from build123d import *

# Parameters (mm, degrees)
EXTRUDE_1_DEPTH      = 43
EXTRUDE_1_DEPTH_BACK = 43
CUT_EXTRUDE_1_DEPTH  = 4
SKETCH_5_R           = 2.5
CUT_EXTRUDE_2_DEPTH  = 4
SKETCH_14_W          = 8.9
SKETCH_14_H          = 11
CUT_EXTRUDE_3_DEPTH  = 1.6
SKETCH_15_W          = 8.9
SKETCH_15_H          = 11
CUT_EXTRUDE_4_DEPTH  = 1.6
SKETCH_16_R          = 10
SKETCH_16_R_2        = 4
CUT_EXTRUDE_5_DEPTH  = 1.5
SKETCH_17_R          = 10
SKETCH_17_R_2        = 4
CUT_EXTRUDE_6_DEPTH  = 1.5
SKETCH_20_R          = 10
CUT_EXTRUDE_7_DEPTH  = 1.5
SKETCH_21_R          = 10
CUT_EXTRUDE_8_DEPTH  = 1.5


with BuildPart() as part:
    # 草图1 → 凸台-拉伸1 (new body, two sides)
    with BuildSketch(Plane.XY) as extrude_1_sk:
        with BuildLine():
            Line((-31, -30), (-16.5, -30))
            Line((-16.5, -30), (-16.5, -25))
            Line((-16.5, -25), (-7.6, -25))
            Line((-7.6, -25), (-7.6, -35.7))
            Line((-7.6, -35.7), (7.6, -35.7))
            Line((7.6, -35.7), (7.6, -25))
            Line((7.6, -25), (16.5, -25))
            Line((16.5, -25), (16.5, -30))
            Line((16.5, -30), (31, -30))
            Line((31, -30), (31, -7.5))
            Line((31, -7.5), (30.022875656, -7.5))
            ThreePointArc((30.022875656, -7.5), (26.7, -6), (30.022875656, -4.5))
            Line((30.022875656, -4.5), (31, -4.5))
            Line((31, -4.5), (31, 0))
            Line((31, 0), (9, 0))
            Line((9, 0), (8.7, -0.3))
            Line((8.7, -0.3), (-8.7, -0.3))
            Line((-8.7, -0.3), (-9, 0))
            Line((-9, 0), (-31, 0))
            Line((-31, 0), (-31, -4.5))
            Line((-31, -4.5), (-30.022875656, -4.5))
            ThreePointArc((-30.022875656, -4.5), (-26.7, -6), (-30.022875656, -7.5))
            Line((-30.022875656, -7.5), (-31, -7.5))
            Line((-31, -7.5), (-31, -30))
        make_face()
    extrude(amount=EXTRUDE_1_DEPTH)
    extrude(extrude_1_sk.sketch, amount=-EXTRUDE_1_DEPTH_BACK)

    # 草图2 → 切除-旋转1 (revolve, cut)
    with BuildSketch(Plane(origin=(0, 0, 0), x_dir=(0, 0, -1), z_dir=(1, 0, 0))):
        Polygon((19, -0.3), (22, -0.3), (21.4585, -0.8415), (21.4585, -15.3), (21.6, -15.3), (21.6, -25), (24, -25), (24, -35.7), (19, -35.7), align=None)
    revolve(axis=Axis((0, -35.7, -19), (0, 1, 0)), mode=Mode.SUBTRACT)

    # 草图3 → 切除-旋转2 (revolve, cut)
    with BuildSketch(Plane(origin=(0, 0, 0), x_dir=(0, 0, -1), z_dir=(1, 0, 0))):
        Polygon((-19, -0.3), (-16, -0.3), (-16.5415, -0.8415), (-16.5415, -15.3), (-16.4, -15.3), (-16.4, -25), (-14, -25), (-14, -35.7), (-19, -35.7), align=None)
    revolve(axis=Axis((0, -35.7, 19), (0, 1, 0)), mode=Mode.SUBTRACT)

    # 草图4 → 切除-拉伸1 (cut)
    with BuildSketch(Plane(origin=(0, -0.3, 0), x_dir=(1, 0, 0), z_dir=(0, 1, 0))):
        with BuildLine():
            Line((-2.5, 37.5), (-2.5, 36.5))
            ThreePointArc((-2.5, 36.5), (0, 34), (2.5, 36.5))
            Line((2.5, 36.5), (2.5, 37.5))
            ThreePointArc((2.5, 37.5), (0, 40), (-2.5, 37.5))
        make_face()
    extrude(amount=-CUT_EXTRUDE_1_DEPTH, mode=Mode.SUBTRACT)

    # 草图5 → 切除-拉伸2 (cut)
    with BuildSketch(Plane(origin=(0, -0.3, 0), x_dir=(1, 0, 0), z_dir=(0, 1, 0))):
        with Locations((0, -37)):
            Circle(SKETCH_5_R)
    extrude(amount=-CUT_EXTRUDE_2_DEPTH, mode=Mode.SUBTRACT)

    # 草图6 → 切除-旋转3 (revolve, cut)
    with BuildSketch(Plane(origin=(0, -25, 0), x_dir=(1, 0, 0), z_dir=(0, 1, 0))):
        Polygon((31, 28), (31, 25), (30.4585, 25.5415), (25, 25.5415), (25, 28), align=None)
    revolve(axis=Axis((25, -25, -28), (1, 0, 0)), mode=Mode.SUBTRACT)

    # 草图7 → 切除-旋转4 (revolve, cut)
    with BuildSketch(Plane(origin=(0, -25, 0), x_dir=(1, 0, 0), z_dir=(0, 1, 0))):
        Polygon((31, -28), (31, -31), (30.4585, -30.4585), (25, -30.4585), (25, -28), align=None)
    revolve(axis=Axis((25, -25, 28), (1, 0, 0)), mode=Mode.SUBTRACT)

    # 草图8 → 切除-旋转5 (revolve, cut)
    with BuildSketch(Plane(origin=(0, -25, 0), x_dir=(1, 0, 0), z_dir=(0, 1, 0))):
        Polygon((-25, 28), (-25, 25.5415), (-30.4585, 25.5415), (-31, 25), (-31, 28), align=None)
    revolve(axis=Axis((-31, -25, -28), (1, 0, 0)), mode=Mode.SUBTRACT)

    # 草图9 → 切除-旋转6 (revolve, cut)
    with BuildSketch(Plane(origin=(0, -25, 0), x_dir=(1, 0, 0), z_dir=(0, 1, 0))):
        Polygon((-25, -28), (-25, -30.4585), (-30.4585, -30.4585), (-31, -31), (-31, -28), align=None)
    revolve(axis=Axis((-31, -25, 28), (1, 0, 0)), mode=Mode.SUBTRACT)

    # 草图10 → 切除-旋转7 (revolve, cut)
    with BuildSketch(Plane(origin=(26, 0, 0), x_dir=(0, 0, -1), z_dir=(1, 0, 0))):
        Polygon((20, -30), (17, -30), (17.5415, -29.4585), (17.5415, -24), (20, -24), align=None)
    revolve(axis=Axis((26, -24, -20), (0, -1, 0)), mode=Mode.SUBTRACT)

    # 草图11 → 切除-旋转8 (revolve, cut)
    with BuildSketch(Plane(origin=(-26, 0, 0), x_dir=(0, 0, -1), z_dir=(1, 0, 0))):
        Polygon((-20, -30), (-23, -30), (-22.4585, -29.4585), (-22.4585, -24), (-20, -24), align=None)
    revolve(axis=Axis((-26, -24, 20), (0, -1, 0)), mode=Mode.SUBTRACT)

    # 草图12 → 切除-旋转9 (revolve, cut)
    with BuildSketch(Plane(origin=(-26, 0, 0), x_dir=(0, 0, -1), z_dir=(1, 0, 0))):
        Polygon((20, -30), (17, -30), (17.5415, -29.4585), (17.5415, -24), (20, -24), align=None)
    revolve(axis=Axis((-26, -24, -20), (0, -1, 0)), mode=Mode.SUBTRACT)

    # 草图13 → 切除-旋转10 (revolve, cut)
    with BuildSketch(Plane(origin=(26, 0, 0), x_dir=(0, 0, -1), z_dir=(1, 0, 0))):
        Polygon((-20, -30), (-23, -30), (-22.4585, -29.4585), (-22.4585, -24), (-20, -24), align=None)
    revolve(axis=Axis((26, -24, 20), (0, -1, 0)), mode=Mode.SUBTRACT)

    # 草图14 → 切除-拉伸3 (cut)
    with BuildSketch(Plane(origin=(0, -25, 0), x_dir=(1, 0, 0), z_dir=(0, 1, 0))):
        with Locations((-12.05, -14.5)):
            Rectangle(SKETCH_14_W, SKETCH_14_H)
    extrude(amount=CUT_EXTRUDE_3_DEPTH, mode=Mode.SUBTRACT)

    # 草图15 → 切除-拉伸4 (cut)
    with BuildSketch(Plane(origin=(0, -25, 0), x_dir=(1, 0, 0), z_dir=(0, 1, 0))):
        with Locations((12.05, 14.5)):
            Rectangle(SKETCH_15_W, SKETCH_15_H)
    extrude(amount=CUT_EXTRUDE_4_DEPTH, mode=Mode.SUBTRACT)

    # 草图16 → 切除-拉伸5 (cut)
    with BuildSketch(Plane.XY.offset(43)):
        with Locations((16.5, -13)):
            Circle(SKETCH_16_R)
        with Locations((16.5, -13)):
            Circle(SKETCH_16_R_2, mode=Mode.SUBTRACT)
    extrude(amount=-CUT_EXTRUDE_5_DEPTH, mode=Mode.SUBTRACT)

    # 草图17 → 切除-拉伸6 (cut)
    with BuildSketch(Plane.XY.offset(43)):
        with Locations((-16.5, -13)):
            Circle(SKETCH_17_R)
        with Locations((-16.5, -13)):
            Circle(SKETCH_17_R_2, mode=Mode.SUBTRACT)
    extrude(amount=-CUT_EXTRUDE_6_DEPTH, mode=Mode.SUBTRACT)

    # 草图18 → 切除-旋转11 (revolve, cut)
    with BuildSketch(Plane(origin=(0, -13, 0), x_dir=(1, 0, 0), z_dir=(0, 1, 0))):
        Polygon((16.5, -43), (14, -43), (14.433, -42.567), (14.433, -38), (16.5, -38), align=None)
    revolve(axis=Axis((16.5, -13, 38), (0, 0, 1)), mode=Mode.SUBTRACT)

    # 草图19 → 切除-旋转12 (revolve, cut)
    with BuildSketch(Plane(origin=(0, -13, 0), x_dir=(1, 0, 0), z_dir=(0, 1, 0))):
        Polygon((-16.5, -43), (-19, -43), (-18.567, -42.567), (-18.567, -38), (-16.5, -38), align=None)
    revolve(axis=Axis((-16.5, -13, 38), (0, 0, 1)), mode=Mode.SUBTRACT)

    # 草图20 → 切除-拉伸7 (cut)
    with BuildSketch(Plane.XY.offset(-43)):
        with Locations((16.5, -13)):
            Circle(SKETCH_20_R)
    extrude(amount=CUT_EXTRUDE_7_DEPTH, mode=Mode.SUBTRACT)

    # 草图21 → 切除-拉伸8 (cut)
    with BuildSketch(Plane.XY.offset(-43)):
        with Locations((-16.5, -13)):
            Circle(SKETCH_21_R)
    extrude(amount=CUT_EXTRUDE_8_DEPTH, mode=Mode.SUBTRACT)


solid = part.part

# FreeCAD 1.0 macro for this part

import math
import FreeCAD as App
import Part
import Sketcher
from FreeCAD import Vector
Q = App.Units.Quantity


def add_polygon(sketch, points):
    """Adds a closed chain of lines whose ends are joined by coincident constraints."""
    first, n = sketch.GeometryCount, len(points)
    for a, b in zip(points, points[1:] + points[:1]):
        sketch.addGeometry(Part.LineSegment(App.Vector(*a, 0), App.Vector(*b, 0)), False)
    for i in range(n):
        sketch.addConstraint(Sketcher.Constraint("Coincident", first + i, 2, first + (i + 1) % n, 1))

doc = App.newDocument("Part")
params = doc.addObject("Spreadsheet::Sheet", "Params")
for row, (alias, value) in enumerate([
    ("sketch1_radius", "2 mm"),
    ("sketch1_width", "22 mm"),
    ("sketch1_height", "5 mm"),
    ("sketch1_width2", "14.5 mm"),
    ("sketch1_width3", "8.9 mm"),
    ("pad1_length", "43 mm"),
    ("pad1_length2", "43 mm"),
    ("sketch2_height", "3 mm"),
    ("sketch2_height2", "5 mm"),
    ("sketch2_width", "35.4 mm"),
    ("sketch2_width2", "10.7 mm"),
    ("sketch2_width3", "9.7 mm"),
    ("groove_angle", "360 deg"),
    ("sketch3_height", "3 mm"),
    ("sketch3_height2", "5 mm"),
    ("sketch3_width", "35.4 mm"),
    ("sketch3_width2", "10.7 mm"),
    ("sketch3_width3", "9.7 mm"),
    ("groove2_angle", "360 deg"),
    ("sketch4_radius", "2.5 mm"),
    ("sketch4_height", "1 mm"),
    ("pocket1_length", "4 mm"),
    ("sketch5_diameter", "5 mm"),
    ("pocket2_length", "4 mm"),
    ("sketch6_width", "6 mm"),
    ("sketch6_height", "3 mm"),
    ("groove3_angle", "360 deg"),
    ("sketch7_width", "6 mm"),
    ("sketch7_height", "3 mm"),
    ("groove4_angle", "360 deg"),
    ("sketch8_width", "6 mm"),
    ("sketch8_height", "3 mm"),
    ("groove5_angle", "360 deg"),
    ("sketch9_width", "6 mm"),
    ("sketch9_height", "3 mm"),
    ("groove6_angle", "360 deg"),
    ("sketch10_width", "6 mm"),
    ("sketch10_height", "3 mm"),
    ("groove7_angle", "360 deg"),
    ("sketch11_width", "6 mm"),
    ("sketch11_height", "3 mm"),
    ("groove8_angle", "360 deg"),
    ("sketch12_width", "6 mm"),
    ("sketch12_height", "3 mm"),
    ("groove9_angle", "360 deg"),
    ("sketch13_width", "6 mm"),
    ("sketch13_height", "3 mm"),
    ("groove10_angle", "360 deg"),
    ("sketch14_height", "11 mm"),
    ("sketch14_width", "8.9 mm"),
    ("pocket3_length", "1.6 mm"),
    ("sketch15_height", "11 mm"),
    ("sketch15_width", "8.9 mm"),
    ("pocket4_length", "1.6 mm"),
    ("sketch16_diameter", "20 mm"),
    ("sketch16_diameter2", "8 mm"),
    ("pocket5_length", "1.5 mm"),
    ("sketch17_diameter", "20 mm"),
    ("sketch17_diameter2", "8 mm"),
    ("pocket6_length", "1.5 mm"),
    ("sketch18_height", "5 mm"),
    ("sketch18_width", "2.5 mm"),
    ("groove11_angle", "360 deg"),
    ("sketch19_height", "5 mm"),
    ("sketch19_width", "2.5 mm"),
    ("groove12_angle", "360 deg"),
    ("sketch20_diameter", "20 mm"),
    ("pocket7_length", "1.5 mm"),
    ("sketch21_diameter", "20 mm"),
    ("pocket8_length", "1.5 mm"),
], start=1):
    params.set(f"A{row}", alias)
    params.set(f"B{row}", "=" + value)
    params.setAlias(f"B{row}", alias)

body = doc.addObject("PartDesign::Body", "Body")

sketch1 = body.newObject("Sketcher::SketchObject", "Sketch")
sketch1.AttachmentSupport = (doc.getObject("XY_Plane"), [""])
sketch1.MapMode = "FlatFace"
sketch1.addGeometry([
    Part.LineSegment(Vector(-31, -30, 0), Vector(-16.5, -30, 0)),
    Part.LineSegment(Vector(-16.5, -30, 0), Vector(-16.5, -25, 0)),
    Part.LineSegment(Vector(-16.5, -25, 0), Vector(-7.6, -25, 0)),
    Part.LineSegment(Vector(-7.6, -25, 0), Vector(-7.6, -35.7, 0)),
    Part.LineSegment(Vector(-7.6, -35.7, 0), Vector(7.6, -35.7, 0)),
    Part.LineSegment(Vector(7.6, -35.7, 0), Vector(7.6, -25, 0)),
    Part.LineSegment(Vector(7.6, -25, 0), Vector(16.5, -25, 0)),
    Part.LineSegment(Vector(16.5, -25, 0), Vector(16.5, -30, 0)),
    Part.LineSegment(Vector(16.5, -30, 0), Vector(31, -30, 0)),
    Part.LineSegment(Vector(31, -30, 0), Vector(31, -7.5, 0)),
    Part.LineSegment(Vector(31, -7.5, 0), Vector(30.022876, -7.5, 0)),
    Part.ArcOfCircle(Part.Circle(Vector(28.7, -6, 0), Vector(0, 0, 1), 2), math.radians(48.590378), math.radians(311.409622)),
    Part.LineSegment(Vector(30.022876, -4.5, 0), Vector(31, -4.5, 0)),
    Part.LineSegment(Vector(31, -4.5, 0), Vector(31, 0, 0)),
    Part.LineSegment(Vector(31, 0, 0), Vector(9, 0, 0)),
    Part.LineSegment(Vector(9, 0, 0), Vector(8.7, -0.3, 0)),
    Part.LineSegment(Vector(8.7, -0.3, 0), Vector(-8.7, -0.3, 0)),
    Part.LineSegment(Vector(-8.7, -0.3, 0), Vector(-9, 0, 0)),
    Part.LineSegment(Vector(-9, 0, 0), Vector(-31, 0, 0)),
    Part.LineSegment(Vector(-31, 0, 0), Vector(-31, -4.5, 0)),
    Part.LineSegment(Vector(-31, -4.5, 0), Vector(-30.022876, -4.5, 0)),
    Part.ArcOfCircle(Part.Circle(Vector(-28.7, -6, 0), Vector(0, 0, 1), 2), math.radians(-131.409622), math.radians(131.409622)),
    Part.LineSegment(Vector(-30.022876, -7.5, 0), Vector(-31, -7.5, 0)),
    Part.LineSegment(Vector(-31, -7.5, 0), Vector(-31, -30, 0)),
], False)
sketch1.addConstraint([
    Sketcher.Constraint("Coincident", 0, 2, 1, 1),
    Sketcher.Constraint("Coincident", 1, 2, 2, 1),
    Sketcher.Constraint("Coincident", 2, 2, 3, 1),
    Sketcher.Constraint("Coincident", 3, 2, 4, 1),
    Sketcher.Constraint("Coincident", 4, 2, 5, 1),
    Sketcher.Constraint("Coincident", 5, 2, 6, 1),
    Sketcher.Constraint("Coincident", 6, 2, 7, 1),
    Sketcher.Constraint("Coincident", 7, 2, 8, 1),
    Sketcher.Constraint("Coincident", 8, 2, 9, 1),
    Sketcher.Constraint("Coincident", 9, 2, 10, 1),
    Sketcher.Constraint("Coincident", 10, 2, 11, 2),
    Sketcher.Constraint("Coincident", 11, 1, 12, 1),
    Sketcher.Constraint("Coincident", 12, 2, 13, 1),
    Sketcher.Constraint("Coincident", 13, 2, 14, 1),
    Sketcher.Constraint("Coincident", 14, 2, 15, 1),
    Sketcher.Constraint("Coincident", 15, 2, 16, 1),
    Sketcher.Constraint("Coincident", 16, 2, 17, 1),
    Sketcher.Constraint("Coincident", 17, 2, 18, 1),
    Sketcher.Constraint("Coincident", 18, 2, 19, 1),
    Sketcher.Constraint("Coincident", 19, 2, 20, 1),
    Sketcher.Constraint("Coincident", 20, 2, 21, 2),
    Sketcher.Constraint("Coincident", 21, 1, 22, 1),
    Sketcher.Constraint("Coincident", 22, 2, 23, 1),
    Sketcher.Constraint("Coincident", 23, 2, 0, 1),
    Sketcher.Constraint("Horizontal", 0),
    Sketcher.Constraint("Vertical", 1),
    Sketcher.Constraint("Horizontal", 2),
    Sketcher.Constraint("Vertical", 3),
    Sketcher.Constraint("Horizontal", 4),
    Sketcher.Constraint("Vertical", 5),
    Sketcher.Constraint("Horizontal", 6),
    Sketcher.Constraint("Vertical", 7),
    Sketcher.Constraint("Horizontal", 8),
    Sketcher.Constraint("Vertical", 9),
    Sketcher.Constraint("Horizontal", 10),
    Sketcher.Constraint("Horizontal", 12),
    Sketcher.Constraint("Vertical", 13),
    Sketcher.Constraint("Horizontal", 14),
    Sketcher.Constraint("Horizontal", 16),
    Sketcher.Constraint("Horizontal", 18),
    Sketcher.Constraint("Vertical", 19),
    Sketcher.Constraint("Horizontal", 20),
    Sketcher.Constraint("Horizontal", 22),
    Sketcher.Constraint("Vertical", 23),
    Sketcher.Constraint("Equal", 11, 21),
    Sketcher.Constraint("Symmetric", 14, 2, 17, 2, -1, 1),
    Sketcher.Constraint("Symmetric", 11, 3, 21, 3, -2),
    Sketcher.Constraint("Symmetric", 2, 2, 5, 2, -2),
    Sketcher.Constraint("Symmetric", 0, 2, 7, 2, -2),
    Sketcher.Constraint("Symmetric", 13, 2, 18, 2, -2),
    Sketcher.Constraint("Symmetric", 9, 2, 22, 2, -2),
    Sketcher.Constraint("Perpendicular", 15, 17),
    Sketcher.Constraint("Horizontal", 12, 2, 19, 2),
    Sketcher.Constraint("Vertical", 10, 2, 11, 1),
    Sketcher.Constraint("Vertical", 9, 2, 12, 2),
    Sketcher.Constraint("Equal", 15, 17),
    Sketcher.Constraint("Radius", 11, 2.0),
    Sketcher.Constraint("DistanceX", 14, 2, 14, 1, 22.0),
    Sketcher.Constraint("DistanceY", 1, 1, 1, 2, 5.0),
    Sketcher.Constraint("DistanceX", 0, 1, 0, 2, 14.5),
    Sketcher.Constraint("DistanceX", 2, 1, 2, 2, 8.9),
    Sketcher.Constraint("DistanceX", 4, 1, 4, 2, 15.2),
    Sketcher.Constraint("DistanceX", 16, 2, 16, 1, 17.4),
    Sketcher.Constraint("DistanceY", 3, 2, 3, 1, 10.7),
    Sketcher.Constraint("DistanceY", 9, 1, 9, 2, 22.5),
    Sketcher.Constraint("DistanceY", 13, 1, 13, 2, 4.5),
    Sketcher.Constraint("DistanceY", 11, 3, -1, 1, 6.0),
    Sketcher.Constraint("DistanceX", 15, 2, 11, 3, 20.0),
])
sketch1.setExpression("Constraints[56]", "Params.sketch1_radius")
sketch1.setExpression("Constraints[57]", "Params.sketch1_width")
sketch1.setExpression("Constraints[58]", "Params.sketch1_height")
sketch1.setExpression("Constraints[59]", "Params.sketch1_width2")
sketch1.setExpression("Constraints[60]", "Params.sketch1_width3")
pad1 = body.newObject("PartDesign::Pad", "Pad")
pad1.Profile = sketch1
pad1.Type = "TwoLengths"
pad1.setExpression("Length", "Params.pad1_length")
pad1.setExpression("Length2", "Params.pad1_length2")

sketch2 = body.newObject("Sketcher::SketchObject", "Sketch001")
sketch2.AttachmentSupport = (doc.getObject("YZ_Plane"), [""])
sketch2.MapMode = "FlatFace"
add_polygon(sketch2, [(-0.3, -22), (-0.3, -19), (-35.7, -19), (-35.7, -24), (-25, -24), (-25, -21.6), (-15.3, -21.6), (-15.3, -21.4585), (-0.8415, -21.4585)])
sketch2.addGeometry(Part.LineSegment(Vector(-35.7, -19, 0), Vector(-0.3, -19, 0)), True)
sketch2.addConstraint([
    Sketcher.Constraint("Vertical", 0),
    Sketcher.Constraint("Horizontal", 1),
    Sketcher.Constraint("Vertical", 2),
    Sketcher.Constraint("Horizontal", 3),
    Sketcher.Constraint("Vertical", 4),
    Sketcher.Constraint("Horizontal", 5),
    Sketcher.Constraint("Vertical", 6),
    Sketcher.Constraint("Horizontal", 7),
    Sketcher.Constraint("Horizontal", 9),
    Sketcher.Constraint("Coincident", 9, 1, 1, 2),
    Sketcher.Constraint("Vertical", 8, 2, 9, 2),
    Sketcher.Constraint("DistanceY", 0, 1, 0, 2, 3.0),
    Sketcher.Constraint("DistanceY", 2, 2, 2, 1, 5.0),
    Sketcher.Constraint("Angle", 8, Q("-45 deg")),
    Sketcher.Constraint("DistanceX", 1, 2, 1, 1, 35.4),
    Sketcher.Constraint("DistanceX", 3, 1, 3, 2, 10.7),
    Sketcher.Constraint("DistanceX", 5, 1, 5, 2, 9.7),
    Sketcher.Constraint("DistanceY", 4, 1, 4, 2, 2.4),
    Sketcher.Constraint("DistanceY", 0, 2, -1, 1, 19.0),
    Sketcher.Constraint("DistanceX", 3, 2, -1, 1, 25.0),
    Sketcher.Constraint("DistanceX", 7, 1, 7, 2, 14.4585),
])
sketch2.setExpression("Constraints[20]", "Params.sketch2_height")
sketch2.setExpression("Constraints[21]", "Params.sketch2_height2")
sketch2.setExpression("Constraints[23]", "Params.sketch2_width")
sketch2.setExpression("Constraints[24]", "Params.sketch2_width2")
sketch2.setExpression("Constraints[25]", "Params.sketch2_width3")
groove = body.newObject("PartDesign::Groove", "Groove")
groove.Profile = sketch2
groove.ReferenceAxis = (sketch2, ["Axis0"])
groove.setExpression("Angle", "Params.groove_angle")

sketch3 = body.newObject("Sketcher::SketchObject", "Sketch002")
sketch3.AttachmentSupport = (doc.getObject("YZ_Plane"), [""])
sketch3.MapMode = "FlatFace"
add_polygon(sketch3, [(-0.3, 16), (-0.3, 19), (-35.7, 19), (-35.7, 14), (-25, 14), (-25, 16.4), (-15.3, 16.4), (-15.3, 16.5415), (-0.8415, 16.5415)])
sketch3.addGeometry(Part.LineSegment(Vector(-35.7, 19, 0), Vector(-0.3, 19, 0)), True)
sketch3.addConstraint([
    Sketcher.Constraint("Vertical", 0),
    Sketcher.Constraint("Horizontal", 1),
    Sketcher.Constraint("Vertical", 2),
    Sketcher.Constraint("Horizontal", 3),
    Sketcher.Constraint("Vertical", 4),
    Sketcher.Constraint("Horizontal", 5),
    Sketcher.Constraint("Vertical", 6),
    Sketcher.Constraint("Horizontal", 7),
    Sketcher.Constraint("Horizontal", 9),
    Sketcher.Constraint("Coincident", 9, 1, 1, 2),
    Sketcher.Constraint("Vertical", 8, 2, 9, 2),
    Sketcher.Constraint("DistanceY", 0, 1, 0, 2, 3.0),
    Sketcher.Constraint("DistanceY", 2, 2, 2, 1, 5.0),
    Sketcher.Constraint("Angle", 8, Q("-45 deg")),
    Sketcher.Constraint("DistanceX", 1, 2, 1, 1, 35.4),
    Sketcher.Constraint("DistanceX", 3, 1, 3, 2, 10.7),
    Sketcher.Constraint("DistanceX", 5, 1, 5, 2, 9.7),
    Sketcher.Constraint("DistanceY", 4, 1, 4, 2, 2.4),
    Sketcher.Constraint("DistanceY", -1, 1, 0, 2, 19.0),
    Sketcher.Constraint("DistanceX", 3, 2, -1, 1, 25.0),
    Sketcher.Constraint("DistanceX", 7, 1, 7, 2, 14.4585),
])
sketch3.setExpression("Constraints[20]", "Params.sketch3_height")
sketch3.setExpression("Constraints[21]", "Params.sketch3_height2")
sketch3.setExpression("Constraints[23]", "Params.sketch3_width")
sketch3.setExpression("Constraints[24]", "Params.sketch3_width2")
sketch3.setExpression("Constraints[25]", "Params.sketch3_width3")
groove2 = body.newObject("PartDesign::Groove", "Groove001")
groove2.Profile = sketch3
groove2.ReferenceAxis = (sketch3, ["Axis0"])
groove2.setExpression("Angle", "Params.groove2_angle")

sketch4 = body.newObject("Sketcher::SketchObject", "Sketch003")
sketch4.AttachmentSupport = (doc.getObject("XZ_Plane"), [""])
sketch4.MapMode = "FlatFace"
sketch4.AttachmentOffset = App.Placement(Vector(0, 0, 0.3), App.Rotation())
sketch4.addGeometry([
    Part.LineSegment(Vector(-2.5, -37.5, 0), Vector(-2.5, -36.5, 0)),
    Part.ArcOfCircle(Part.Circle(Vector(0, -36.5, 0), Vector(0, 0, 1), 2.5), math.radians(0), math.radians(180)),
    Part.LineSegment(Vector(2.5, -36.5, 0), Vector(2.5, -37.5, 0)),
    Part.ArcOfCircle(Part.Circle(Vector(0, -37.5, 0), Vector(0, 0, 1), 2.5), math.radians(180), math.radians(360)),
], False)
sketch4.addConstraint([
    Sketcher.Constraint("Tangent", 0, 2, 1, 2),
    Sketcher.Constraint("Tangent", 1, 1, 2, 1),
    Sketcher.Constraint("Tangent", 2, 2, 3, 2),
    Sketcher.Constraint("Tangent", 3, 1, 0, 1),
    Sketcher.Constraint("Vertical", 0),
    Sketcher.Constraint("Vertical", 2),
    Sketcher.Constraint("PointOnObject", 1, 3, -2),
    Sketcher.Constraint("Radius", 1, 2.5),
    Sketcher.Constraint("DistanceY", 0, 1, 0, 2, 1.0),
    Sketcher.Constraint("DistanceY", 1, 3, -1, 1, 36.5),
])
sketch4.setExpression("Constraints[7]", "Params.sketch4_radius")
sketch4.setExpression("Constraints[8]", "Params.sketch4_height")
pocket1 = body.newObject("PartDesign::Pocket", "Pocket")
pocket1.Profile = sketch4
pocket1.setExpression("Length", "Params.pocket1_length")
pocket1.Reversed = True

sketch5 = body.newObject("Sketcher::SketchObject", "Sketch004")
sketch5.AttachmentSupport = (doc.getObject("XZ_Plane"), [""])
sketch5.MapMode = "FlatFace"
sketch5.AttachmentOffset = App.Placement(Vector(0, 0, 0.3), App.Rotation())
sketch5.addGeometry(Part.Circle(Vector(0, 37, 0), Vector(0, 0, 1), 2.5), False)
sketch5.addConstraint([
    Sketcher.Constraint("PointOnObject", 0, 3, -2),
    Sketcher.Constraint("Diameter", 0, 5.0),
    Sketcher.Constraint("DistanceY", -1, 1, 0, 3, 37.0),
])
sketch5.setExpression("Constraints[1]", "Params.sketch5_diameter")
pocket2 = body.newObject("PartDesign::Pocket", "Pocket001")
pocket2.Profile = sketch5
pocket2.setExpression("Length", "Params.pocket2_length")
pocket2.Reversed = True

sketch6 = body.newObject("Sketcher::SketchObject", "Sketch005")
sketch6.AttachmentSupport = (doc.getObject("XZ_Plane"), [""])
sketch6.MapMode = "FlatFace"
sketch6.AttachmentOffset = App.Placement(Vector(0, 0, 25), App.Rotation())
add_polygon(sketch6, [(31, -25), (31, -28), (25, -28), (25, -25.5415), (30.4585, -25.5415)])
sketch6.addGeometry(Part.LineSegment(Vector(25, -28, 0), Vector(31, -28, 0)), True)
sketch6.addConstraint([
    Sketcher.Constraint("Vertical", 0),
    Sketcher.Constraint("Horizontal", 1),
    Sketcher.Constraint("Vertical", 2),
    Sketcher.Constraint("Horizontal", 3),
    Sketcher.Constraint("Horizontal", 5),
    Sketcher.Constraint("Coincident", 5, 1, 1, 2),
    Sketcher.Constraint("Vertical", 4, 2, 5, 2),
    Sketcher.Constraint("DistanceX", 1, 2, 1, 1, 6.0),
    Sketcher.Constraint("DistanceY", 0, 2, 0, 1, 3.0),
    Sketcher.Constraint("Angle", 4, Q("45 deg")),
    Sketcher.Constraint("DistanceX", -1, 1, 0, 2, 31.0),
    Sketcher.Constraint("DistanceY", 0, 2, -1, 1, 28.0),
    Sketcher.Constraint("DistanceX", 3, 1, 3, 2, 5.4585),
])
sketch6.setExpression("Constraints[12]", "Params.sketch6_width")
sketch6.setExpression("Constraints[13]", "Params.sketch6_height")
groove3 = body.newObject("PartDesign::Groove", "Groove002")
groove3.Profile = sketch6
groove3.ReferenceAxis = (sketch6, ["Axis0"])
groove3.setExpression("Angle", "Params.groove3_angle")

sketch7 = body.newObject("Sketcher::SketchObject", "Sketch006")
sketch7.AttachmentSupport = (doc.getObject("XZ_Plane"), [""])
sketch7.MapMode = "FlatFace"
sketch7.AttachmentOffset = App.Placement(Vector(0, 0, 25), App.Rotation())
add_polygon(sketch7, [(31, 31), (31, 28), (25, 28), (25, 30.4585), (30.4585, 30.4585)])
sketch7.addGeometry(Part.LineSegment(Vector(25, 28, 0), Vector(31, 28, 0)), True)
sketch7.addConstraint([
    Sketcher.Constraint("Vertical", 0),
    Sketcher.Constraint("Horizontal", 1),
    Sketcher.Constraint("Vertical", 2),
    Sketcher.Constraint("Horizontal", 3),
    Sketcher.Constraint("Horizontal", 5),
    Sketcher.Constraint("Coincident", 5, 1, 1, 2),
    Sketcher.Constraint("Vertical", 4, 2, 5, 2),
    Sketcher.Constraint("DistanceX", 1, 2, 1, 1, 6.0),
    Sketcher.Constraint("DistanceY", 0, 2, 0, 1, 3.0),
    Sketcher.Constraint("Angle", 4, Q("45 deg")),
    Sketcher.Constraint("DistanceX", -1, 1, 0, 2, 31.0),
    Sketcher.Constraint("DistanceY", -1, 1, 0, 2, 28.0),
    Sketcher.Constraint("DistanceX", 3, 1, 3, 2, 5.4585),
])
sketch7.setExpression("Constraints[12]", "Params.sketch7_width")
sketch7.setExpression("Constraints[13]", "Params.sketch7_height")
groove4 = body.newObject("PartDesign::Groove", "Groove003")
groove4.Profile = sketch7
groove4.ReferenceAxis = (sketch7, ["Axis0"])
groove4.setExpression("Angle", "Params.groove4_angle")

sketch8 = body.newObject("Sketcher::SketchObject", "Sketch007")
sketch8.AttachmentSupport = (doc.getObject("XZ_Plane"), [""])
sketch8.MapMode = "FlatFace"
sketch8.AttachmentOffset = App.Placement(Vector(0, 0, 25), App.Rotation())
add_polygon(sketch8, [(-25, -25.5415), (-25, -28), (-31, -28), (-31, -25), (-30.4585, -25.5415)])
sketch8.addGeometry(Part.LineSegment(Vector(-31, -28, 0), Vector(-25, -28, 0)), True)
sketch8.addConstraint([
    Sketcher.Constraint("Vertical", 0),
    Sketcher.Constraint("Horizontal", 1),
    Sketcher.Constraint("Vertical", 2),
    Sketcher.Constraint("Horizontal", 4),
    Sketcher.Constraint("Horizontal", 5),
    Sketcher.Constraint("Coincident", 5, 1, 1, 2),
    Sketcher.Constraint("Vertical", 4, 2, 5, 2),
    Sketcher.Constraint("DistanceX", 1, 2, 1, 1, 6.0),
    Sketcher.Constraint("DistanceY", 2, 1, 2, 2, 3.0),
    Sketcher.Constraint("Angle", 3, Q("-45 deg")),
    Sketcher.Constraint("DistanceX", 0, 2, -1, 1, 25.0),
    Sketcher.Constraint("DistanceY", 0, 2, -1, 1, 28.0),
    Sketcher.Constraint("DistanceX", 4, 1, 4, 2, 5.4585),
])
sketch8.setExpression("Constraints[12]", "Params.sketch8_width")
sketch8.setExpression("Constraints[13]", "Params.sketch8_height")
groove5 = body.newObject("PartDesign::Groove", "Groove004")
groove5.Profile = sketch8
groove5.ReferenceAxis = (sketch8, ["Axis0"])
groove5.setExpression("Angle", "Params.groove5_angle")

sketch9 = body.newObject("Sketcher::SketchObject", "Sketch008")
sketch9.AttachmentSupport = (doc.getObject("XZ_Plane"), [""])
sketch9.MapMode = "FlatFace"
sketch9.AttachmentOffset = App.Placement(Vector(0, 0, 25), App.Rotation())
add_polygon(sketch9, [(-25, 30.4585), (-25, 28), (-31, 28), (-31, 31), (-30.4585, 30.4585)])
sketch9.addGeometry(Part.LineSegment(Vector(-31, 28, 0), Vector(-25, 28, 0)), True)
sketch9.addConstraint([
    Sketcher.Constraint("Vertical", 0),
    Sketcher.Constraint("Horizontal", 1),
    Sketcher.Constraint("Vertical", 2),
    Sketcher.Constraint("Horizontal", 4),
    Sketcher.Constraint("Horizontal", 5),
    Sketcher.Constraint("Coincident", 5, 1, 1, 2),
    Sketcher.Constraint("Vertical", 4, 2, 5, 2),
    Sketcher.Constraint("DistanceX", 1, 2, 1, 1, 6.0),
    Sketcher.Constraint("DistanceY", 2, 1, 2, 2, 3.0),
    Sketcher.Constraint("Angle", 3, Q("-45 deg")),
    Sketcher.Constraint("DistanceX", 0, 2, -1, 1, 25.0),
    Sketcher.Constraint("DistanceY", -1, 1, 0, 2, 28.0),
    Sketcher.Constraint("DistanceX", 4, 1, 4, 2, 5.4585),
])
sketch9.setExpression("Constraints[12]", "Params.sketch9_width")
sketch9.setExpression("Constraints[13]", "Params.sketch9_height")
groove6 = body.newObject("PartDesign::Groove", "Groove005")
groove6.Profile = sketch9
groove6.ReferenceAxis = (sketch9, ["Axis0"])
groove6.setExpression("Angle", "Params.groove6_angle")

sketch10 = body.newObject("Sketcher::SketchObject", "Sketch009")
sketch10.AttachmentSupport = (doc.getObject("YZ_Plane"), [""])
sketch10.MapMode = "FlatFace"
sketch10.AttachmentOffset = App.Placement(Vector(0, 0, 26), App.Rotation())
add_polygon(sketch10, [(-30, -17), (-30, -20), (-24, -20), (-24, -17.5415), (-29.4585, -17.5415)])
sketch10.addGeometry(Part.LineSegment(Vector(-24, -20, 0), Vector(-30, -20, 0)), True)
sketch10.addConstraint([
    Sketcher.Constraint("Vertical", 0),
    Sketcher.Constraint("Horizontal", 1),
    Sketcher.Constraint("Vertical", 2),
    Sketcher.Constraint("Horizontal", 3),
    Sketcher.Constraint("Horizontal", 5),
    Sketcher.Constraint("Coincident", 5, 1, 1, 2),
    Sketcher.Constraint("Vertical", 4, 2, 5, 2),
    Sketcher.Constraint("DistanceX", 1, 1, 1, 2, 6.0),
    Sketcher.Constraint("DistanceY", 0, 2, 0, 1, 3.0),
    Sketcher.Constraint("Angle", 4, Q("135 deg")),
    Sketcher.Constraint("DistanceX", 0, 2, -1, 1, 30.0),
    Sketcher.Constraint("DistanceY", 0, 2, -1, 1, 20.0),
    Sketcher.Constraint("DistanceX", 3, 2, 3, 1, 5.4585),
])
sketch10.setExpression("Constraints[12]", "Params.sketch10_width")
sketch10.setExpression("Constraints[13]", "Params.sketch10_height")
groove7 = body.newObject("PartDesign::Groove", "Groove006")
groove7.Profile = sketch10
groove7.ReferenceAxis = (sketch10, ["Axis0"])
groove7.setExpression("Angle", "Params.groove7_angle")

sketch11 = body.newObject("Sketcher::SketchObject", "Sketch010")
sketch11.AttachmentSupport = (doc.getObject("YZ_Plane"), [""])
sketch11.MapMode = "FlatFace"
sketch11.AttachmentOffset = App.Placement(Vector(0, 0, -26), App.Rotation())
add_polygon(sketch11, [(-30, 23), (-30, 20), (-24, 20), (-24, 22.4585), (-29.4585, 22.4585)])
sketch11.addGeometry(Part.LineSegment(Vector(-24, 20, 0), Vector(-30, 20, 0)), True)
sketch11.addConstraint([
    Sketcher.Constraint("Vertical", 0),
    Sketcher.Constraint("Horizontal", 1),
    Sketcher.Constraint("Vertical", 2),
    Sketcher.Constraint("Horizontal", 3),
    Sketcher.Constraint("Horizontal", 5),
    Sketcher.Constraint("Coincident", 5, 1, 1, 2),
    Sketcher.Constraint("Vertical", 4, 2, 5, 2),
    Sketcher.Constraint("DistanceX", 1, 1, 1, 2, 6.0),
    Sketcher.Constraint("DistanceY", 0, 2, 0, 1, 3.0),
    Sketcher.Constraint("Angle", 4, Q("135 deg")),
    Sketcher.Constraint("DistanceX", 0, 2, -1, 1, 30.0),
    Sketcher.Constraint("DistanceY", -1, 1, 0, 2, 20.0),
    Sketcher.Constraint("DistanceX", 3, 2, 3, 1, 5.4585),
])
sketch11.setExpression("Constraints[12]", "Params.sketch11_width")
sketch11.setExpression("Constraints[13]", "Params.sketch11_height")
groove8 = body.newObject("PartDesign::Groove", "Groove007")
groove8.Profile = sketch11
groove8.ReferenceAxis = (sketch11, ["Axis0"])
groove8.setExpression("Angle", "Params.groove8_angle")

sketch12 = body.newObject("Sketcher::SketchObject", "Sketch011")
sketch12.AttachmentSupport = (doc.getObject("YZ_Plane"), [""])
sketch12.MapMode = "FlatFace"
sketch12.AttachmentOffset = App.Placement(Vector(0, 0, -26), App.Rotation())
add_polygon(sketch12, [(-30, -17), (-30, -20), (-24, -20), (-24, -17.5415), (-29.4585, -17.5415)])
sketch12.addGeometry(Part.LineSegment(Vector(-24, -20, 0), Vector(-30, -20, 0)), True)
sketch12.addConstraint([
    Sketcher.Constraint("Vertical", 0),
    Sketcher.Constraint("Horizontal", 1),
    Sketcher.Constraint("Vertical", 2),
    Sketcher.Constraint("Horizontal", 3),
    Sketcher.Constraint("Horizontal", 5),
    Sketcher.Constraint("Coincident", 5, 1, 1, 2),
    Sketcher.Constraint("Vertical", 4, 2, 5, 2),
    Sketcher.Constraint("DistanceX", 1, 1, 1, 2, 6.0),
    Sketcher.Constraint("DistanceY", 0, 2, 0, 1, 3.0),
    Sketcher.Constraint("Angle", 4, Q("135 deg")),
    Sketcher.Constraint("DistanceX", 0, 2, -1, 1, 30.0),
    Sketcher.Constraint("DistanceY", 0, 2, -1, 1, 20.0),
    Sketcher.Constraint("DistanceX", 3, 2, 3, 1, 5.4585),
])
sketch12.setExpression("Constraints[12]", "Params.sketch12_width")
sketch12.setExpression("Constraints[13]", "Params.sketch12_height")
groove9 = body.newObject("PartDesign::Groove", "Groove008")
groove9.Profile = sketch12
groove9.ReferenceAxis = (sketch12, ["Axis0"])
groove9.setExpression("Angle", "Params.groove9_angle")

sketch13 = body.newObject("Sketcher::SketchObject", "Sketch012")
sketch13.AttachmentSupport = (doc.getObject("YZ_Plane"), [""])
sketch13.MapMode = "FlatFace"
sketch13.AttachmentOffset = App.Placement(Vector(0, 0, 26), App.Rotation())
add_polygon(sketch13, [(-30, 23), (-30, 20), (-24, 20), (-24, 22.4585), (-29.4585, 22.4585)])
sketch13.addGeometry(Part.LineSegment(Vector(-24, 20, 0), Vector(-30, 20, 0)), True)
sketch13.addConstraint([
    Sketcher.Constraint("Vertical", 0),
    Sketcher.Constraint("Horizontal", 1),
    Sketcher.Constraint("Vertical", 2),
    Sketcher.Constraint("Horizontal", 3),
    Sketcher.Constraint("Horizontal", 5),
    Sketcher.Constraint("Coincident", 5, 1, 1, 2),
    Sketcher.Constraint("Vertical", 4, 2, 5, 2),
    Sketcher.Constraint("DistanceX", 1, 1, 1, 2, 6.0),
    Sketcher.Constraint("DistanceY", 0, 2, 0, 1, 3.0),
    Sketcher.Constraint("Angle", 4, Q("135 deg")),
    Sketcher.Constraint("DistanceX", 0, 2, -1, 1, 30.0),
    Sketcher.Constraint("DistanceY", -1, 1, 0, 2, 20.0),
    Sketcher.Constraint("DistanceX", 3, 2, 3, 1, 5.4585),
])
sketch13.setExpression("Constraints[12]", "Params.sketch13_width")
sketch13.setExpression("Constraints[13]", "Params.sketch13_height")
groove10 = body.newObject("PartDesign::Groove", "Groove009")
groove10.Profile = sketch13
groove10.ReferenceAxis = (sketch13, ["Axis0"])
groove10.setExpression("Angle", "Params.groove10_angle")

sketch14 = body.newObject("Sketcher::SketchObject", "Sketch013")
sketch14.AttachmentSupport = (doc.getObject("XZ_Plane"), [""])
sketch14.MapMode = "FlatFace"
sketch14.AttachmentOffset = App.Placement(Vector(0, 0, 25), App.Rotation())
add_polygon(sketch14, [(-16.5, 9), (-16.5, 20), (-7.6, 20), (-7.6, 9)])
sketch14.addConstraint([
    Sketcher.Constraint("Vertical", 0),
    Sketcher.Constraint("Horizontal", 1),
    Sketcher.Constraint("Vertical", 2),
    Sketcher.Constraint("Horizontal", 3),
    Sketcher.Constraint("DistanceY", 0, 1, 0, 2, 11.0),
    Sketcher.Constraint("DistanceX", 1, 1, 1, 2, 8.9),
    Sketcher.Constraint("DistanceY", -1, 1, 0, 2, 20.0),
    Sketcher.Constraint("DistanceX", 0, 2, -1, 1, 16.5),
])
sketch14.setExpression("Constraints[8]", "Params.sketch14_height")
sketch14.setExpression("Constraints[9]", "Params.sketch14_width")
pocket3 = body.newObject("PartDesign::Pocket", "Pocket002")
pocket3.Profile = sketch14
pocket3.setExpression("Length", "Params.pocket3_length")

sketch15 = body.newObject("Sketcher::SketchObject", "Sketch014")
sketch15.AttachmentSupport = (doc.getObject("XZ_Plane"), [""])
sketch15.MapMode = "FlatFace"
sketch15.AttachmentOffset = App.Placement(Vector(0, 0, 25), App.Rotation())
add_polygon(sketch15, [(7.6, -20), (7.6, -9), (16.5, -9), (16.5, -20)])
sketch15.addConstraint([
    Sketcher.Constraint("Vertical", 0),
    Sketcher.Constraint("Horizontal", 1),
    Sketcher.Constraint("Vertical", 2),
    Sketcher.Constraint("Horizontal", 3),
    Sketcher.Constraint("DistanceY", 0, 1, 0, 2, 11.0),
    Sketcher.Constraint("DistanceX", 1, 1, 1, 2, 8.9),
    Sketcher.Constraint("DistanceY", 0, 2, -1, 1, 9.0),
    Sketcher.Constraint("DistanceX", -1, 1, 0, 2, 7.6),
])
sketch15.setExpression("Constraints[8]", "Params.sketch15_height")
sketch15.setExpression("Constraints[9]", "Params.sketch15_width")
pocket4 = body.newObject("PartDesign::Pocket", "Pocket003")
pocket4.Profile = sketch15
pocket4.setExpression("Length", "Params.pocket4_length")

sketch16 = body.newObject("Sketcher::SketchObject", "Sketch015")
sketch16.AttachmentSupport = (doc.getObject("XY_Plane"), [""])
sketch16.MapMode = "FlatFace"
sketch16.AttachmentOffset = App.Placement(Vector(0, 0, 43), App.Rotation())
sketch16.addGeometry([
    Part.Circle(Vector(16.5, -13, 0), Vector(0, 0, 1), 10),
    Part.Circle(Vector(16.5, -13, 0), Vector(0, 0, 1), 4),
], False)
sketch16.addConstraint([
    Sketcher.Constraint("Coincident", 1, 3, 0, 3),
    Sketcher.Constraint("Diameter", 0, 20.0),
    Sketcher.Constraint("Diameter", 1, 8.0),
    Sketcher.Constraint("DistanceY", 0, 3, -1, 1, 13.0),
    Sketcher.Constraint("DistanceX", -1, 1, 0, 3, 16.5),
])
sketch16.setExpression("Constraints[1]", "Params.sketch16_diameter")
sketch16.setExpression("Constraints[2]", "Params.sketch16_diameter2")
pocket5 = body.newObject("PartDesign::Pocket", "Pocket004")
pocket5.Profile = sketch16
pocket5.setExpression("Length", "Params.pocket5_length")

sketch17 = body.newObject("Sketcher::SketchObject", "Sketch016")
sketch17.AttachmentSupport = (doc.getObject("XY_Plane"), [""])
sketch17.MapMode = "FlatFace"
sketch17.AttachmentOffset = App.Placement(Vector(0, 0, 43), App.Rotation())
sketch17.addGeometry([
    Part.Circle(Vector(-16.5, -13, 0), Vector(0, 0, 1), 10),
    Part.Circle(Vector(-16.5, -13, 0), Vector(0, 0, 1), 4),
], False)
sketch17.addConstraint([
    Sketcher.Constraint("Coincident", 1, 3, 0, 3),
    Sketcher.Constraint("Diameter", 0, 20.0),
    Sketcher.Constraint("Diameter", 1, 8.0),
    Sketcher.Constraint("DistanceY", 0, 3, -1, 1, 13.0),
    Sketcher.Constraint("DistanceX", 0, 3, -1, 1, 16.5),
])
sketch17.setExpression("Constraints[1]", "Params.sketch17_diameter")
sketch17.setExpression("Constraints[2]", "Params.sketch17_diameter2")
pocket6 = body.newObject("PartDesign::Pocket", "Pocket005")
pocket6.Profile = sketch17
pocket6.setExpression("Length", "Params.pocket6_length")

sketch18 = body.newObject("Sketcher::SketchObject", "Sketch017")
sketch18.AttachmentSupport = (doc.getObject("XZ_Plane"), [""])
sketch18.MapMode = "FlatFace"
sketch18.AttachmentOffset = App.Placement(Vector(0, 0, 13), App.Rotation())
add_polygon(sketch18, [(14, 43), (16.5, 43), (16.5, 38), (14.433, 38), (14.433, 42.567)])
sketch18.addGeometry(Part.LineSegment(Vector(16.5, 38, 0), Vector(16.5, 43, 0)), True)
sketch18.addConstraint([
    Sketcher.Constraint("Horizontal", 0),
    Sketcher.Constraint("Vertical", 1),
    Sketcher.Constraint("Horizontal", 2),
    Sketcher.Constraint("Vertical", 3),
    Sketcher.Constraint("Vertical", 5),
    Sketcher.Constraint("Coincident", 5, 1, 1, 2),
    Sketcher.Constraint("Horizontal", 4, 2, 5, 2),
    Sketcher.Constraint("DistanceY", 1, 2, 1, 1, 5.0),
    Sketcher.Constraint("Angle", 4, Q("135 deg")),
    Sketcher.Constraint("DistanceX", 0, 1, 0, 2, 2.5),
    Sketcher.Constraint("DistanceY", -1, 1, 0, 2, 43.0),
    Sketcher.Constraint("DistanceX", -1, 1, 4, 2, 14.0),
    Sketcher.Constraint("DistanceX", 2, 2, 2, 1, 2.067),
])
sketch18.setExpression("Constraints[12]", "Params.sketch18_height")
sketch18.setExpression("Constraints[14]", "Params.sketch18_width")
groove11 = body.newObject("PartDesign::Groove", "Groove010")
groove11.Profile = sketch18
groove11.ReferenceAxis = (sketch18, ["Axis0"])
groove11.setExpression("Angle", "Params.groove11_angle")

sketch19 = body.newObject("Sketcher::SketchObject", "Sketch018")
sketch19.AttachmentSupport = (doc.getObject("XZ_Plane"), [""])
sketch19.MapMode = "FlatFace"
sketch19.AttachmentOffset = App.Placement(Vector(0, 0, 13), App.Rotation())
add_polygon(sketch19, [(-19, 43), (-16.5, 43), (-16.5, 38), (-18.567, 38), (-18.567, 42.567)])
sketch19.addGeometry(Part.LineSegment(Vector(-16.5, 38, 0), Vector(-16.5, 43, 0)), True)
sketch19.addConstraint([
    Sketcher.Constraint("Horizontal", 0),
    Sketcher.Constraint("Vertical", 1),
    Sketcher.Constraint("Horizontal", 2),
    Sketcher.Constraint("Vertical", 3),
    Sketcher.Constraint("Vertical", 5),
    Sketcher.Constraint("Coincident", 5, 1, 1, 2),
    Sketcher.Constraint("Horizontal", 4, 2, 5, 2),
    Sketcher.Constraint("DistanceY", 1, 2, 1, 1, 5.0),
    Sketcher.Constraint("Angle", 4, Q("135 deg")),
    Sketcher.Constraint("DistanceX", 0, 1, 0, 2, 2.5),
    Sketcher.Constraint("DistanceY", -1, 1, 0, 2, 43.0),
    Sketcher.Constraint("DistanceX", 4, 2, -1, 1, 19.0),
    Sketcher.Constraint("DistanceX", 2, 2, 2, 1, 2.067),
])
sketch19.setExpression("Constraints[12]", "Params.sketch19_height")
sketch19.setExpression("Constraints[14]", "Params.sketch19_width")
groove12 = body.newObject("PartDesign::Groove", "Groove011")
groove12.Profile = sketch19
groove12.ReferenceAxis = (sketch19, ["Axis0"])
groove12.setExpression("Angle", "Params.groove12_angle")

sketch20 = body.newObject("Sketcher::SketchObject", "Sketch019")
sketch20.AttachmentSupport = (doc.getObject("XY_Plane"), [""])
sketch20.MapMode = "FlatFace"
sketch20.AttachmentOffset = App.Placement(Vector(0, 0, -43), App.Rotation())
sketch20.addGeometry(Part.Circle(Vector(16.5, -13, 0), Vector(0, 0, 1), 10), False)
sketch20.addConstraint([
    Sketcher.Constraint("Diameter", 0, 20.0),
    Sketcher.Constraint("DistanceY", 0, 3, -1, 1, 13.0),
    Sketcher.Constraint("DistanceX", -1, 1, 0, 3, 16.5),
])
sketch20.setExpression("Constraints[0]", "Params.sketch20_diameter")
pocket7 = body.newObject("PartDesign::Pocket", "Pocket006")
pocket7.Profile = sketch20
pocket7.setExpression("Length", "Params.pocket7_length")
pocket7.Reversed = True

sketch21 = body.newObject("Sketcher::SketchObject", "Sketch020")
sketch21.AttachmentSupport = (doc.getObject("XY_Plane"), [""])
sketch21.MapMode = "FlatFace"
sketch21.AttachmentOffset = App.Placement(Vector(0, 0, -43), App.Rotation())
sketch21.addGeometry(Part.Circle(Vector(-16.5, -13, 0), Vector(0, 0, 1), 10), False)
sketch21.addConstraint([
    Sketcher.Constraint("Diameter", 0, 20.0),
    Sketcher.Constraint("DistanceY", 0, 3, -1, 1, 13.0),
    Sketcher.Constraint("DistanceX", 0, 3, -1, 1, 16.5),
])
sketch21.setExpression("Constraints[0]", "Params.sketch21_diameter")
pocket8 = body.newObject("PartDesign::Pocket", "Pocket007")
pocket8.Profile = sketch21
pocket8.setExpression("Length", "Params.pocket8_length")
pocket8.Reversed = True

doc.recompute()
